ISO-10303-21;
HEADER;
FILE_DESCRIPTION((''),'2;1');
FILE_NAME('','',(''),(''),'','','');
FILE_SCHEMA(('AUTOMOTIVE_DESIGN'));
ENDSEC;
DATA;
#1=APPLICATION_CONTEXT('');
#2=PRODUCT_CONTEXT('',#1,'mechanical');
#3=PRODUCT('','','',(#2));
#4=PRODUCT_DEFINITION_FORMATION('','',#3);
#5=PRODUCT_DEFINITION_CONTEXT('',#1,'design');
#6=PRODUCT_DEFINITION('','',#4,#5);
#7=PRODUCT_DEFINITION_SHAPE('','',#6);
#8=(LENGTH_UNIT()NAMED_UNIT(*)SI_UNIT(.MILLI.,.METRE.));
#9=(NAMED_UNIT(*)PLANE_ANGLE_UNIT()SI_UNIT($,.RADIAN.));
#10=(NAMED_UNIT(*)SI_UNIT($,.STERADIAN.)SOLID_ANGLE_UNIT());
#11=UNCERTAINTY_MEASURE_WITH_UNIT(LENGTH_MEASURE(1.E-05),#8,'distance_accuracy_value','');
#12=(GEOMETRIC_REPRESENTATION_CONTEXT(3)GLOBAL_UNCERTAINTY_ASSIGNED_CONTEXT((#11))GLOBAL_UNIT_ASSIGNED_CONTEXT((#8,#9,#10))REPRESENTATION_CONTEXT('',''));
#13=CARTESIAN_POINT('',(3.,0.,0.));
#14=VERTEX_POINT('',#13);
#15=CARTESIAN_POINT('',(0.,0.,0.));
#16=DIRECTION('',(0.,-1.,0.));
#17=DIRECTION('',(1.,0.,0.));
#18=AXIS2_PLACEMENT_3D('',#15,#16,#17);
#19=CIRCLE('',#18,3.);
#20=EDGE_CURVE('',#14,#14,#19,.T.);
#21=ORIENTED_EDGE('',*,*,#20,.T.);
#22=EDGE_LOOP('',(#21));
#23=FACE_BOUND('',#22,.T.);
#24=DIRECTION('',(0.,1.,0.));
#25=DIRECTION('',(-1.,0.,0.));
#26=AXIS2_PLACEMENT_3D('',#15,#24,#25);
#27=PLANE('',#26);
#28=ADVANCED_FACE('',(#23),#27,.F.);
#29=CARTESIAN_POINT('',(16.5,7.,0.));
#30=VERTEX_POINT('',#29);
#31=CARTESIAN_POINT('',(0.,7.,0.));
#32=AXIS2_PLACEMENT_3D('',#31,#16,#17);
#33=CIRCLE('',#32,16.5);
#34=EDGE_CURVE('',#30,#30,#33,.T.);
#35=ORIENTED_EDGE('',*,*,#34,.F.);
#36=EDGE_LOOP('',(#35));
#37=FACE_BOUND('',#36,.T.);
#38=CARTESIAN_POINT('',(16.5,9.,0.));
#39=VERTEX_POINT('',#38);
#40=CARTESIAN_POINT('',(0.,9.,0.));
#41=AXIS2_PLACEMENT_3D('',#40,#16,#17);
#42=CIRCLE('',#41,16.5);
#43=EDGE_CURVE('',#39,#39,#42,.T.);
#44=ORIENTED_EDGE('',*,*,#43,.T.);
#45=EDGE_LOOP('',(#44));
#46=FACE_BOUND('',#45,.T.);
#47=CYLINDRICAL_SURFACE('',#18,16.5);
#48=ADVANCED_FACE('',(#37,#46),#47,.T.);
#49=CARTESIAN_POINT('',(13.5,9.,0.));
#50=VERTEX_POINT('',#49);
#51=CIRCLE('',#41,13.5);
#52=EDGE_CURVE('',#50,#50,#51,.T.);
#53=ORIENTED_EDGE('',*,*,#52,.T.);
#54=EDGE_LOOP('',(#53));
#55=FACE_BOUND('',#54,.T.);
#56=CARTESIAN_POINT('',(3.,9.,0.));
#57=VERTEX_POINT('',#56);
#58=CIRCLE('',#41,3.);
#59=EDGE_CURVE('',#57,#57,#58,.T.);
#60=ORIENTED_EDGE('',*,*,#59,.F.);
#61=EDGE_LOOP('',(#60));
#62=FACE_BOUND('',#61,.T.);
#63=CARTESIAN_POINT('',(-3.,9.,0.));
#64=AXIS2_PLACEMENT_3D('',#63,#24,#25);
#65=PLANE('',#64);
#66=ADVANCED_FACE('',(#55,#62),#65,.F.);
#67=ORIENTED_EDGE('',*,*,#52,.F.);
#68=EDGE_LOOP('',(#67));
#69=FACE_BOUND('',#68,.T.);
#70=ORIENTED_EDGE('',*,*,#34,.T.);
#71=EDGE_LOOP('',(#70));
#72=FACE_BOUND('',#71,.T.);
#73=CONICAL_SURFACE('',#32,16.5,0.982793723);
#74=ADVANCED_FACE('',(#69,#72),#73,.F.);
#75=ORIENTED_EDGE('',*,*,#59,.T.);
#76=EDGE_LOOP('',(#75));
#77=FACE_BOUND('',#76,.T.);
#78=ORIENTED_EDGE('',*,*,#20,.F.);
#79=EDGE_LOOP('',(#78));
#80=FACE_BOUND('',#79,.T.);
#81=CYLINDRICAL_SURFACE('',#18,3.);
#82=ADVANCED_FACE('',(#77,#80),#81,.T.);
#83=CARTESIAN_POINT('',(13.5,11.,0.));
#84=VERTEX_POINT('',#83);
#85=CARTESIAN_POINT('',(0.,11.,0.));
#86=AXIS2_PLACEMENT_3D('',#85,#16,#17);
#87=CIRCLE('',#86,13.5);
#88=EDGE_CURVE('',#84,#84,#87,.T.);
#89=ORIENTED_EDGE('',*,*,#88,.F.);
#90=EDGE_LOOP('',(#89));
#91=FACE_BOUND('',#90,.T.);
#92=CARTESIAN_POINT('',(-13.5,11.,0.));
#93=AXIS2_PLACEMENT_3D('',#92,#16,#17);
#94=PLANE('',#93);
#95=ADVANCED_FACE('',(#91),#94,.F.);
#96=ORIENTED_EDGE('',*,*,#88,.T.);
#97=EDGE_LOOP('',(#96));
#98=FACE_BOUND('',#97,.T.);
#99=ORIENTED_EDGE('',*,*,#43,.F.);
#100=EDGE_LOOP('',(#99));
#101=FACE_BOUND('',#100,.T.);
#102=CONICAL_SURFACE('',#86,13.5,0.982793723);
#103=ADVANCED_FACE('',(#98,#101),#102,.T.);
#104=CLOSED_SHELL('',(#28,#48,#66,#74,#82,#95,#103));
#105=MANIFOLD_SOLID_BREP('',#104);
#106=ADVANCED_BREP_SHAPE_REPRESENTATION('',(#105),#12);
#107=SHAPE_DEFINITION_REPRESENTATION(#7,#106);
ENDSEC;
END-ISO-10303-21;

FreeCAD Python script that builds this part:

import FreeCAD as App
import Part
import Sketcher

V = App.Vector
Q = App.Units.Quantity


def add_polygon(sketch, points):
    """Adds a closed chain of lines whose ends are joined by coincident constraints."""
    first, n = sketch.GeometryCount, len(points)
    for a, b in zip(points, points[1:] + points[:1]):
        sketch.addGeometry(Part.LineSegment(App.Vector(*a, 0), App.Vector(*b, 0)), False)
    for i in range(n):
        sketch.addConstraint(Sketcher.Constraint("Coincident", first + i, 2, first + (i + 1) % n, 1))

doc = App.newDocument("Part")
body = doc.addObject("PartDesign::Body", "Body")

sketch1 = body.newObject("Sketcher::SketchObject", "Sketch")
sketch1.AttachmentSupport = (doc.getObject("XY_Plane"), [""])
sketch1.MapMode = "FlatFace"
add_polygon(sketch1, [(-3, 0), (0, 0), (0, 11), (-13.5, 11), (-16.5, 9), (-16.5, 7), (-13.5, 9), (-3, 9)])
sketch1.addConstraint([
    Sketcher.Constraint("Horizontal", 0),
    Sketcher.Constraint("Vertical", 1),
    Sketcher.Constraint("Horizontal", 2),
    Sketcher.Constraint("Vertical", 4),
    Sketcher.Constraint("Horizontal", 6),
    Sketcher.Constraint("Vertical", 7),
    Sketcher.Constraint("Coincident", 0, 2, -1, 1),
    Sketcher.Constraint("Parallel", 3, 5),
    Sketcher.Constraint("Horizontal", 3, 2, 5, 2),
    Sketcher.Constraint("Vertical", 2, 2, 5, 2),
    Sketcher.Constraint("DistanceX", 0, 1, 0, 2, Q("3 mm")),
    Sketcher.Constraint("DistanceY", 1, 1, 1, 2, Q("11 mm")),
    Sketcher.Constraint("DistanceY", 4, 2, 4, 1, Q("2 mm")),
    Sketcher.Constraint("DistanceX", 2, 2, 2, 1, Q("13.5 mm")),
    Sketcher.Constraint("DistanceX", 3, 2, 2, 2, Q("3 mm")),
])
revolution = body.newObject("PartDesign::Revolution", "Revolution")
revolution.Profile = sketch1
revolution.ReferenceAxis = (sketch1, ["V_Axis"])
revolution.Angle = 360

doc.recompute()
